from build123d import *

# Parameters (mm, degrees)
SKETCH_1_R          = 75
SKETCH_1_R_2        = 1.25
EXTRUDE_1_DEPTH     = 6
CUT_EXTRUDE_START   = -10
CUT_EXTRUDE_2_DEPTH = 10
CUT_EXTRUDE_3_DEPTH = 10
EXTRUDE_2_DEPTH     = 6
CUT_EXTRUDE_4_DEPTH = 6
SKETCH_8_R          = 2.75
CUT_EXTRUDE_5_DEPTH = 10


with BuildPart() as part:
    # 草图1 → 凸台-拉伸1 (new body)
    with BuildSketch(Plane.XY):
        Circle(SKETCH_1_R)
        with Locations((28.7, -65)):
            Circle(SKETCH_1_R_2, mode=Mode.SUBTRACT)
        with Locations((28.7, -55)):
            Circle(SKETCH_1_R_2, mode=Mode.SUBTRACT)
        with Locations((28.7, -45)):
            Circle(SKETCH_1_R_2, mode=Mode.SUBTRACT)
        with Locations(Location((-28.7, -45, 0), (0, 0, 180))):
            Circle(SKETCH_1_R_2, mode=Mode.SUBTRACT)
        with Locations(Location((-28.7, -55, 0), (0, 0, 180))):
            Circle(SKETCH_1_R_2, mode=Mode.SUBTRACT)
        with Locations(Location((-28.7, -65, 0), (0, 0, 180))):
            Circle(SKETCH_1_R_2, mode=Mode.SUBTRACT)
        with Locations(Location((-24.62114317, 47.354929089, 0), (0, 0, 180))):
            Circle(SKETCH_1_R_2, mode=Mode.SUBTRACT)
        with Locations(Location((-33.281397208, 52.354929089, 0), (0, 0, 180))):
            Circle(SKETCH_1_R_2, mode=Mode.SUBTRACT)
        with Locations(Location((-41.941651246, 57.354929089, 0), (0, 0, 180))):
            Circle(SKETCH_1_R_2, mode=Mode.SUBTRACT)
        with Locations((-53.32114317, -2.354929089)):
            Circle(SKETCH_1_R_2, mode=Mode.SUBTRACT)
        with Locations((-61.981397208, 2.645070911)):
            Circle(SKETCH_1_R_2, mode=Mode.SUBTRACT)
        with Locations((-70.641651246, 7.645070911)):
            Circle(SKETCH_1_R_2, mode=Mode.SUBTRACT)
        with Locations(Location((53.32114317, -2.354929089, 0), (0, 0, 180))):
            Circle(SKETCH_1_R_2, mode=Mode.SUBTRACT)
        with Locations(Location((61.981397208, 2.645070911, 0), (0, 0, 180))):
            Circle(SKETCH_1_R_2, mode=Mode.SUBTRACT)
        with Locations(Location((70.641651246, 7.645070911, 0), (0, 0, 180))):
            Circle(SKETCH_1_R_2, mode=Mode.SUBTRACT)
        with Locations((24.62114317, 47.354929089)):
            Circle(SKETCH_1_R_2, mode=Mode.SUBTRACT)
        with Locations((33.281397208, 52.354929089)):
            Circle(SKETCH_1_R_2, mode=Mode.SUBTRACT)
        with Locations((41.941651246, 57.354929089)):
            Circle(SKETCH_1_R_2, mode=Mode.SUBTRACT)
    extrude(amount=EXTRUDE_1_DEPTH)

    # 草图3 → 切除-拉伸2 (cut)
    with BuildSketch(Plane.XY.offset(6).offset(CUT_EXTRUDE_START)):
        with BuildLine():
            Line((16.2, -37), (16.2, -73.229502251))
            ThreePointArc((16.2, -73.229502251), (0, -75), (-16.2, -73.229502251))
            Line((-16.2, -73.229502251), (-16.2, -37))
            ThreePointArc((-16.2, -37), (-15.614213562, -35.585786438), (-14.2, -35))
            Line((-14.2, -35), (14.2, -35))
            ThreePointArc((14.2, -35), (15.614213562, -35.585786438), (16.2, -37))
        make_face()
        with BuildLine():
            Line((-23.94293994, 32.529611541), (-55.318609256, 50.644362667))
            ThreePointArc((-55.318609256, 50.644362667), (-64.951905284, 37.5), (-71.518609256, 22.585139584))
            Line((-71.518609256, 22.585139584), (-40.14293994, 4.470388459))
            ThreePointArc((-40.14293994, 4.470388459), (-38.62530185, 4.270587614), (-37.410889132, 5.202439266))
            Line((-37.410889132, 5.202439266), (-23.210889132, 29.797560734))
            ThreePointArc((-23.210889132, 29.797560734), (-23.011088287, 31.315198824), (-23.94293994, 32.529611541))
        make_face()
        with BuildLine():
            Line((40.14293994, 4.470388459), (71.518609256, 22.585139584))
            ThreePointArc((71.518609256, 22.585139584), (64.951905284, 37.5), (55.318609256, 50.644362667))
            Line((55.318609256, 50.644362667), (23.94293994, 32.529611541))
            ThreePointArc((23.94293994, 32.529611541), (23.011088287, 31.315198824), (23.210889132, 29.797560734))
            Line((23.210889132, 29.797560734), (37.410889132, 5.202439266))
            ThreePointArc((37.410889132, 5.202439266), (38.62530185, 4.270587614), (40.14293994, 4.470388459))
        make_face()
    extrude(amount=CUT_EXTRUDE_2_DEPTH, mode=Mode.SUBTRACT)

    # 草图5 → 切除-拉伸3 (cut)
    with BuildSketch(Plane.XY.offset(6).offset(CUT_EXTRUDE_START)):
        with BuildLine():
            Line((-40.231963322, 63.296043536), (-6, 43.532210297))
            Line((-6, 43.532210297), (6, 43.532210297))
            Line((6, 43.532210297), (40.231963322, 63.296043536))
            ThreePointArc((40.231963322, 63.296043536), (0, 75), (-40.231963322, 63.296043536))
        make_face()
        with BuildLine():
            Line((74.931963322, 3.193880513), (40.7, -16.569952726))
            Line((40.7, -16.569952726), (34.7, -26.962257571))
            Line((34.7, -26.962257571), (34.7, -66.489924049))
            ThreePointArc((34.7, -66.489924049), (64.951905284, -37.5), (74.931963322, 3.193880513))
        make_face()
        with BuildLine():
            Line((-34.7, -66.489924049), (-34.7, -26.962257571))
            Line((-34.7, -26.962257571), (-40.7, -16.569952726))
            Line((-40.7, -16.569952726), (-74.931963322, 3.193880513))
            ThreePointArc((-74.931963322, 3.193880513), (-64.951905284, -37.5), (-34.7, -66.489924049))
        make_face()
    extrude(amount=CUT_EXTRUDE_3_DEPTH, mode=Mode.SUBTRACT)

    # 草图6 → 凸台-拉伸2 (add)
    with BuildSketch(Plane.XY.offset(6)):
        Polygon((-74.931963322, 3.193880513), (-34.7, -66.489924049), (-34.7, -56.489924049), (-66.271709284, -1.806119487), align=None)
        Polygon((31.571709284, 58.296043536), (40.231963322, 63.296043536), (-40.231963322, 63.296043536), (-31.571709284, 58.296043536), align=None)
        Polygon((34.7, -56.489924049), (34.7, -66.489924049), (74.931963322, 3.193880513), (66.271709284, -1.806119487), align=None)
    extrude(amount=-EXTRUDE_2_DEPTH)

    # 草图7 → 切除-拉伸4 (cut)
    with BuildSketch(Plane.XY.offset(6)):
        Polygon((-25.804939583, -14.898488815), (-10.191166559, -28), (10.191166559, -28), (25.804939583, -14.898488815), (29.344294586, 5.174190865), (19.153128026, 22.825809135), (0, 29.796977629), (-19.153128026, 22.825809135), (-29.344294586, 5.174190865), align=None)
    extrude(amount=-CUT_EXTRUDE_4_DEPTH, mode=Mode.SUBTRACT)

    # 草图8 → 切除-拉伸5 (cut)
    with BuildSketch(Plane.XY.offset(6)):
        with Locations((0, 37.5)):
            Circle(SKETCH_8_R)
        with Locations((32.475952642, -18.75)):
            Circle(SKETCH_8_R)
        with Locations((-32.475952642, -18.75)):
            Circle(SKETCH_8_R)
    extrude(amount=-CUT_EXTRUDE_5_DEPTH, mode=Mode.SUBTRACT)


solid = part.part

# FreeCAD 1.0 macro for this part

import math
import FreeCAD as App
import Part
import Sketcher

V = App.Vector
Q = App.Units.Quantity


def add_polygon(sketch, points):
    """Adds a closed chain of lines whose ends are joined by coincident constraints."""
    first, n = sketch.GeometryCount, len(points)
    for a, b in zip(points, points[1:] + points[:1]):
        sketch.addGeometry(Part.LineSegment(App.Vector(*a, 0), App.Vector(*b, 0)), False)
    for i in range(n):
        sketch.addConstraint(Sketcher.Constraint("Coincident", first + i, 2, first + (i + 1) % n, 1))

doc = App.newDocument("Part")
body = doc.addObject("PartDesign::Body", "Body")

# Sketch on XY plane
sketch1 = body.newObject("Sketcher::SketchObject", "Sketch")
sketch1.AttachmentSupport = (doc.getObject("XY_Plane"), [""])
sketch1.MapMode = "FlatFace"
sketch1.addGeometry([
    Part.Circle(V(0, 0, 0), V(0, 0, 1), 75),  # 0
    Part.Circle(V(-28.7, -65, 0), V(0, 0, 1), 1.2),  # 1
    Part.Circle(V(-28.7, -55, 0), V(0, 0, 1), 1.2),  # 2
    Part.Circle(V(-28.7, -45, 0), V(0, 0, 1), 1.2),  # 3
    Part.Circle(V(28.7, -65, 0), V(0, 0, 1), 1.2),  # 4
    Part.Circle(V(28.7, -55, 0), V(0, 0, 1), 1.2),  # 5
    Part.Circle(V(28.7, -45, 0), V(0, 0, 1), 1.2),  # 6
    Part.Circle(V(-62, 2.6, 0), V(0, 0, 1), 1.2),  # 7
    Part.Circle(V(-70.6, 7.6, 0), V(0, 0, 1), 1.2),  # 8
    Part.Circle(V(-53.3, -2.4, 0), V(0, 0, 1), 1.2),  # 9
    Part.Circle(V(-41.9, 57.4, 0), V(0, 0, 1), 1.2),  # 10
    Part.Circle(V(-24.6, 47.4, 0), V(0, 0, 1), 1.2),  # 11
    Part.Circle(V(-33.3, 52.4, 0), V(0, 0, 1), 1.2),  # 12
    Part.Circle(V(53.3, -2.4, 0), V(0, 0, 1), 1.2),  # 13
    Part.Circle(V(62, 2.6, 0), V(0, 0, 1), 1.2),  # 14
    Part.Circle(V(70.6, 7.6, 0), V(0, 0, 1), 1.2),  # 15
    Part.Circle(V(24.6, 47.4, 0), V(0, 0, 1), 1.2),  # 16
    Part.Circle(V(33.3, 52.4, 0), V(0, 0, 1), 1.2),  # 17
    Part.Circle(V(41.9, 57.4, 0), V(0, 0, 1), 1.2),  # 18
], False)
sketch1.addConstraint([
    Sketcher.Constraint("Coincident", 0, 3, -1, 1),
    Sketcher.Constraint("Equal", 1, 2),
    Sketcher.Constraint("Equal", 2, 3),
    Sketcher.Constraint("Equal", 3, 4),
    Sketcher.Constraint("Equal", 4, 5),
    Sketcher.Constraint("Equal", 5, 6),
    Sketcher.Constraint("Equal", 6, 7),
    Sketcher.Constraint("Equal", 7, 8),
    Sketcher.Constraint("Equal", 8, 9),
    Sketcher.Constraint("Equal", 9, 10),
    Sketcher.Constraint("Equal", 10, 11),
    Sketcher.Constraint("Equal", 11, 12),
    Sketcher.Constraint("Equal", 12, 13),
    Sketcher.Constraint("Equal", 13, 14),
    Sketcher.Constraint("Equal", 14, 15),
    Sketcher.Constraint("Equal", 15, 16),
    Sketcher.Constraint("Equal", 16, 17),
    Sketcher.Constraint("Equal", 17, 18),
    Sketcher.Constraint("Symmetric", 1, 3, 4, 3, -2),
    Sketcher.Constraint("Symmetric", 2, 3, 5, 3, -2),
    Sketcher.Constraint("Symmetric", 3, 3, 6, 3, -2),
    Sketcher.Constraint("Symmetric", 9, 3, 13, 3, -2),
    Sketcher.Constraint("Symmetric", 7, 3, 14, 3, -2),
    Sketcher.Constraint("Symmetric", 8, 3, 15, 3, -2),
    Sketcher.Constraint("Symmetric", 11, 3, 16, 3, -2),
    Sketcher.Constraint("Symmetric", 12, 3, 17, 3, -2),
    Sketcher.Constraint("Symmetric", 10, 3, 18, 3, -2),
    Sketcher.Constraint("Vertical", 1, 3, 2, 3),
    Sketcher.Constraint("Vertical", 2, 3, 3, 3),
    Sketcher.Constraint("Diameter", 0, 150.0),
    Sketcher.Constraint("Diameter", 1, 2.5),
    Sketcher.Constraint("DistanceY", 1, 3, -1, 1, 65.0),
    Sketcher.Constraint("DistanceY", 2, 3, -1, 1, 55.0),
    Sketcher.Constraint("DistanceY", 3, 3, -1, 1, 45.0),
    Sketcher.Constraint("DistanceY", 7, 3, 8, 3, 5.0),
    Sketcher.Constraint("DistanceY", 9, 3, 7, 3, 5.0),
    Sketcher.Constraint("DistanceY", 11, 3, 10, 3, 10.0),
    Sketcher.Constraint("DistanceY", 12, 3, 10, 3, 5.0),
    Sketcher.Constraint("DistanceX", 1, 3, -1, 1, 28.7),
    Sketcher.Constraint("DistanceX", 8, 3, 10, 3, 28.7),
    Sketcher.Constraint("DistanceX", 9, 3, 11, 3, 28.7),
    Sketcher.Constraint("DistanceX", 7, 3, 12, 3, 28.7),
    Sketcher.Constraint("DistanceY", -1, 1, 7, 3, 2.645071),
    Sketcher.Constraint("DistanceX", 8, 3, -1, 1, 70.641651),
    Sketcher.Constraint("DistanceY", -1, 1, 10, 3, 57.354929),
    Sketcher.Constraint("DistanceX", 8, 3, 9, 3, 17.320508),
    Sketcher.Constraint("DistanceX", 12, 3, 16, 3, 57.90254),
])
pad1 = body.newObject("PartDesign::Pad", "Pad")
pad1.Profile = sketch1
pad1.Length = 6

# Sketch on XY plane
sketch2 = body.newObject("Sketcher::SketchObject", "Sketch001")
sketch2.AttachmentSupport = (doc.getObject("XY_Plane"), [""])
sketch2.MapMode = "FlatFace"
sketch2.AttachmentOffset = App.Placement(V(0, 0, -4), App.Rotation())
sketch2.addGeometry([
    Part.LineSegment(V(16.2, -73.2, 0), V(16.2, -37, 0)),  # 0
    Part.ArcOfCircle(Part.Circle(V(14.2, -37, 0), V(0, 0, 1), 2), math.radians(0), math.radians(90)),  # 1
    Part.LineSegment(V(14.2, -35, 0), V(-14.2, -35, 0)),  # 2
    Part.ArcOfCircle(Part.Circle(V(-14.2, -37, 0), V(0, 0, 1), 2), math.radians(90), math.radians(180)),  # 3
    Part.LineSegment(V(-16.2, -37, 0), V(-16.2, -73.2, 0)),  # 4
    Part.ArcOfCircle(Part.Circle(V(0, 0, 0), V(0, 0, 1), 75), math.radians(-102), math.radians(-78)),  # 5
    Part.LineSegment(V(-23.9, 32.5, 0), V(-55.3, 50.6, 0)),  # 6
    Part.ArcOfCircle(Part.Circle(V(0, 0, 0), V(0, 0, 1), 75), math.radians(138), math.radians(162)),  # 7
    Part.LineSegment(V(-71.5, 22.6, 0), V(-40.1, 4.5, 0)),  # 8
    Part.ArcOfCircle(Part.Circle(V(-39.1, 6.2, 0), V(0, 0, 1), 2), math.radians(-120), math.radians(-30)),  # 9
    Part.LineSegment(V(-37.4, 5.2, 0), V(-23.2, 29.8, 0)),  # 10
    Part.ArcOfCircle(Part.Circle(V(-24.9, 30.8, 0), V(0, 0, 1), 2), math.radians(-30), math.radians(60)),  # 11
    Part.LineSegment(V(40.1, 4.5, 0), V(71.5, 22.6, 0)),  # 12
    Part.ArcOfCircle(Part.Circle(V(0, 0, 0), V(0, 0, 1), 75), math.radians(18), math.radians(42)),  # 13
    Part.LineSegment(V(55.3, 50.6, 0), V(23.9, 32.5, 0)),  # 14
    Part.ArcOfCircle(Part.Circle(V(24.9, 30.8, 0), V(0, 0, 1), 2), math.radians(120), math.radians(210)),  # 15
    Part.LineSegment(V(23.2, 29.8, 0), V(37.4, 5.2, 0)),  # 16
    Part.ArcOfCircle(Part.Circle(V(39.1, 6.2, 0), V(0, 0, 1), 2), math.radians(-150), math.radians(-60)),  # 17
], False)
sketch2.addConstraint([
    Sketcher.Constraint("Tangent", 0, 2, 1, 1),
    Sketcher.Constraint("Tangent", 1, 2, 2, 1),
    Sketcher.Constraint("Tangent", 2, 2, 3, 1),
    Sketcher.Constraint("Tangent", 3, 2, 4, 1),
    Sketcher.Constraint("Coincident", 4, 2, 5, 1),
    Sketcher.Constraint("Coincident", 5, 2, 0, 1),
    Sketcher.Constraint("Coincident", 6, 2, 7, 1),
    Sketcher.Constraint("Coincident", 7, 2, 8, 1),
    Sketcher.Constraint("Tangent", 8, 2, 9, 1),
    Sketcher.Constraint("Tangent", 9, 2, 10, 1),
    Sketcher.Constraint("Tangent", 10, 2, 11, 1),
    Sketcher.Constraint("Tangent", 11, 2, 6, 1),
    Sketcher.Constraint("Coincident", 12, 2, 13, 1),
    Sketcher.Constraint("Coincident", 13, 2, 14, 1),
    Sketcher.Constraint("Tangent", 14, 2, 15, 1),
    Sketcher.Constraint("Tangent", 15, 2, 16, 1),
    Sketcher.Constraint("Tangent", 16, 2, 17, 1),
    Sketcher.Constraint("Tangent", 17, 2, 12, 1),
    Sketcher.Constraint("Vertical", 0),
    Sketcher.Constraint("Horizontal", 2),
    Sketcher.Constraint("Vertical", 4),
    Sketcher.Constraint("Coincident", 5, 3, -1, 1),
    Sketcher.Constraint("Coincident", 7, 3, -1, 1),
    Sketcher.Constraint("Coincident", 13, 3, -1, 1),
    Sketcher.Constraint("Equal", 1, 3),
    Sketcher.Constraint("Equal", 5, 7),
    Sketcher.Constraint("Equal", 3, 9),
    Sketcher.Constraint("Equal", 9, 11),
    Sketcher.Constraint("Equal", 7, 13),
    Sketcher.Constraint("Equal", 11, 15),
    Sketcher.Constraint("Equal", 15, 17),
    Sketcher.Constraint("Symmetric", 11, 3, 15, 3, -2),
    Sketcher.Constraint("Symmetric", 9, 3, 17, 3, -2),
    Sketcher.Constraint("Parallel", 6, 8),
    Sketcher.Constraint("Perpendicular", 8, 10),
    Sketcher.Constraint("Parallel", 12, 14),
    Sketcher.Constraint("Perpendicular", 14, 16),
    Sketcher.Constraint("Horizontal", 4, 2, 5, 2),
    Sketcher.Constraint("Equal", 6, 8),
    Sketcher.Constraint("Radius", 1, 2.0),
    Sketcher.Constraint("Radius", 5, 75.0),
    Sketcher.Constraint("Angle", 6, Q("150 deg")),
    Sketcher.Constraint("DistanceX", 2, 2, 2, 1, 28.4),
    Sketcher.Constraint("DistanceY", 1, 3, -1, 1, 37.0),
    Sketcher.Constraint("Distance", 10, 28.4),
    Sketcher.Constraint("DistanceY", 11, 3, 6, 2, 19.846802),
])
pocket1 = body.newObject("PartDesign::Pocket", "Pocket")
pocket1.Profile = sketch2
pocket1.Length = 10
pocket1.Reversed = True

# Sketch on XY plane
sketch3 = body.newObject("Sketcher::SketchObject", "Sketch002")
sketch3.AttachmentSupport = (doc.getObject("XY_Plane"), [""])
sketch3.MapMode = "FlatFace"
sketch3.AttachmentOffset = App.Placement(V(0, 0, -4), App.Rotation())
sketch3.addGeometry([
    Part.LineSegment(V(-40, 63, 0), V(-6, 44, 0)),  # 0
    Part.LineSegment(V(-6, 44, 0), V(6, 44, 0)),  # 1
    Part.LineSegment(V(6, 44, 0), V(40, 63, 0)),  # 2
    Part.ArcOfCircle(Part.Circle(V(0, 0, 0), V(0, 0, 1), 75), math.radians(58), math.radians(122)),  # 3
    Part.LineSegment(V(75, 3, 0), V(41, -17, 0)),  # 4
    Part.LineSegment(V(41, -17, 0), V(35, -27, 0)),  # 5
    Part.LineSegment(V(35, -27, 0), V(35, -66, 0)),  # 6
    Part.ArcOfCircle(Part.Circle(V(0, 0, 0), V(0, 0, 1), 75), math.radians(-62), math.radians(2)),  # 7
    Part.LineSegment(V(-35, -66, 0), V(-35, -27, 0)),  # 8
    Part.LineSegment(V(-35, -27, 0), V(-41, -17, 0)),  # 9
    Part.LineSegment(V(-41, -17, 0), V(-75, 3, 0)),  # 10
    Part.ArcOfCircle(Part.Circle(V(0, 0, 0), V(0, 0, 1), 75), math.radians(178), math.radians(242)),  # 11
], False)
sketch3.addConstraint([
    Sketcher.Constraint("Coincident", 0, 2, 1, 1),
    Sketcher.Constraint("Coincident", 1, 2, 2, 1),
    Sketcher.Constraint("Coincident", 2, 2, 3, 1),
    Sketcher.Constraint("Coincident", 3, 2, 0, 1),
    Sketcher.Constraint("Coincident", 4, 2, 5, 1),
    Sketcher.Constraint("Coincident", 5, 2, 6, 1),
    Sketcher.Constraint("Coincident", 6, 2, 7, 1),
    Sketcher.Constraint("Coincident", 7, 2, 4, 1),
    Sketcher.Constraint("Coincident", 8, 2, 9, 1),
    Sketcher.Constraint("Coincident", 9, 2, 10, 1),
    Sketcher.Constraint("Coincident", 10, 2, 11, 1),
    Sketcher.Constraint("Coincident", 11, 2, 8, 1),
    Sketcher.Constraint("Horizontal", 1),
    Sketcher.Constraint("Vertical", 6),
    Sketcher.Constraint("Vertical", 8),
    Sketcher.Constraint("Coincident", 3, 3, -1, 1),
    Sketcher.Constraint("Coincident", 7, 3, -1, 1),
    Sketcher.Constraint("Coincident", 11, 3, -1, 1),
    Sketcher.Constraint("Equal", 3, 7),
    Sketcher.Constraint("Equal", 7, 11),
    Sketcher.Constraint("Symmetric", 5, 2, 8, 2, -2),
    Sketcher.Constraint("Symmetric", 4, 2, 9, 2, -2),
    Sketcher.Constraint("Parallel", 2, 4),
    Sketcher.Constraint("Perpendicular", 0, 5),
    Sketcher.Constraint("Perpendicular", 4, 9),
    Sketcher.Constraint("Perpendicular", 5, 10),
    Sketcher.Constraint("Horizontal", 2, 2, 3, 2),
    Sketcher.Constraint("Equal", 2, 4),
    Sketcher.Constraint("Radius", 3, 75.0),
    Sketcher.Constraint("DistanceX", 1, 1, 1, 2, 12.0),
    Sketcher.Constraint("Angle", 0, Q("-30 deg")),
    Sketcher.Constraint("Distance", 5, 12.0),
    Sketcher.Constraint("DistanceX", -1, 1, 4, 2, 40.7),
    Sketcher.Constraint("DistanceY", 6, 2, 6, 1, 39.527666),
])
pocket2 = body.newObject("PartDesign::Pocket", "Pocket001")
pocket2.Profile = sketch3
pocket2.Length = 10
pocket2.Reversed = True

# Sketch on XY plane
sketch4 = body.newObject("Sketcher::SketchObject", "Sketch003")
sketch4.AttachmentSupport = (doc.getObject("XY_Plane"), [""])
sketch4.MapMode = "FlatFace"
sketch4.AttachmentOffset = App.Placement(V(0, 0, 6), App.Rotation())
add_polygon(sketch4, [(-75, 3), (-35, -66), (-35, -56), (-66, -2)])  # lines 0-3
add_polygon(sketch4, [(32, 58), (40, 63), (-40, 63), (-32, 58)])  # lines 4-7
add_polygon(sketch4, [(35, -56), (35, -66), (75, 3), (66, -2)])  # lines 8-11
sketch4.addConstraint([
    Sketcher.Constraint("Vertical", 1),
    Sketcher.Constraint("Horizontal", 5),
    Sketcher.Constraint("Horizontal", 7),
    Sketcher.Constraint("Vertical", 8),
    Sketcher.Constraint("Symmetric", 0, 2, 8, 2, -2),
    Sketcher.Constraint("Symmetric", 3, 2, 9, 2, -2),
    Sketcher.Constraint("Symmetric", 2, 2, 10, 2, -2),
    Sketcher.Constraint("Parallel", 0, 2),
    Sketcher.Constraint("Perpendicular", 2, 4),
    Sketcher.Constraint("Parallel", 3, 6),
    Sketcher.Constraint("Perpendicular", 6, 9),
    Sketcher.Constraint("Parallel", 9, 11),
    Sketcher.Constraint("Equal", 3, 4),
    Sketcher.Constraint("DistanceY", 1, 1, 1, 2, 10.0),
    Sketcher.Constraint("Angle", 0, Q("-60 deg")),
    Sketcher.Constraint("DistanceX", 0, 2, -1, 1, 34.7),
    Sketcher.Constraint("DistanceX", 3, 2, 5, 2, 34.7),
    Sketcher.Constraint("DistanceX", 4, 2, 9, 2, 34.7),
    Sketcher.Constraint("DistanceX", 7, 1, 7, 2, 63.143419),
    Sketcher.Constraint("DistanceY", 2, 2, -1, 1, 1.806119),
    Sketcher.Constraint("DistanceY", -1, 1, 4, 2, 63.296044),
])
pad2 = body.newObject("PartDesign::Pad", "Pad001")
pad2.Profile = sketch4
pad2.Length = 6
pad2.Reversed = True

# Sketch on XY plane
sketch5 = body.newObject("Sketcher::SketchObject", "Sketch004")
sketch5.AttachmentSupport = (doc.getObject("XY_Plane"), [""])
sketch5.MapMode = "FlatFace"
sketch5.AttachmentOffset = App.Placement(V(0, 0, 6), App.Rotation())
add_polygon(sketch5, [(-26, -15), (-10, -28), (10, -28), (26, -15), (29, 5), (19, 23), (0, 30), (-19, 23), (-29, 5)])  # lines 0-8
sketch5.addConstraint([
    Sketcher.Constraint("Horizontal", 1),
    Sketcher.Constraint("Symmetric", 4, 2, 6, 2, -2),
    Sketcher.Constraint("Symmetric", 3, 2, 7, 2, -2),
    Sketcher.Constraint("Symmetric", 2, 2, 8, 2, -2),
    Sketcher.Constraint("PointOnObject", 5, 2, -2),
    Sketcher.Constraint("Equal", 0, 2),
    Sketcher.Constraint("Equal", 2, 3),
    Sketcher.Constraint("Equal", 3, 4),
    Sketcher.Constraint("Equal", 4, 5),
    Sketcher.Constraint("Angle", 0, Q("-40 deg")),
    Sketcher.Constraint("Angle", 3, Q("80 deg")),
    Sketcher.Constraint("Angle", 4, Q("120 deg")),
    Sketcher.Constraint("Angle", 5, Q("160 deg")),
    Sketcher.Constraint("DistanceY", 0, 2, -1, 1, 28.0),
    Sketcher.Constraint("DistanceX", 1, 1, 1, 2, 20.382333),
])
pocket3 = body.newObject("PartDesign::Pocket", "Pocket002")
pocket3.Profile = sketch5
pocket3.Length = 6

# Sketch on XY plane
sketch6 = body.newObject("Sketcher::SketchObject", "Sketch005")
sketch6.AttachmentSupport = (doc.getObject("XY_Plane"), [""])
sketch6.MapMode = "FlatFace"
sketch6.AttachmentOffset = App.Placement(V(0, 0, 6), App.Rotation())
sketch6.addGeometry([
    Part.Circle(V(0, 37.5, 0), V(0, 0, 1), 2.8),
    Part.Circle(V(32.5, -18.8, 0), V(0, 0, 1), 2.8),
    Part.Circle(V(-32.5, -18.8, 0), V(0, 0, 1), 2.8),
], False)
sketch6.addConstraint([
    Sketcher.Constraint("Equal", 0, 1),
    Sketcher.Constraint("Equal", 1, 2),
    Sketcher.Constraint("Symmetric", 1, 3, 2, 3, -2),
    Sketcher.Constraint("PointOnObject", 0, 3, -2),
    Sketcher.Constraint("Diameter", 0, 5.5),
    Sketcher.Constraint("DistanceY", -1, 1, 0, 3, 37.5),
    Sketcher.Constraint("DistanceY", 1, 3, -1, 1, 18.75),
    Sketcher.Constraint("DistanceX", -1, 1, 1, 3, 32.475953),
])
pocket4 = body.newObject("PartDesign::Pocket", "Pocket003")
pocket4.Profile = sketch6
pocket4.Length = 10

doc.recompute()
